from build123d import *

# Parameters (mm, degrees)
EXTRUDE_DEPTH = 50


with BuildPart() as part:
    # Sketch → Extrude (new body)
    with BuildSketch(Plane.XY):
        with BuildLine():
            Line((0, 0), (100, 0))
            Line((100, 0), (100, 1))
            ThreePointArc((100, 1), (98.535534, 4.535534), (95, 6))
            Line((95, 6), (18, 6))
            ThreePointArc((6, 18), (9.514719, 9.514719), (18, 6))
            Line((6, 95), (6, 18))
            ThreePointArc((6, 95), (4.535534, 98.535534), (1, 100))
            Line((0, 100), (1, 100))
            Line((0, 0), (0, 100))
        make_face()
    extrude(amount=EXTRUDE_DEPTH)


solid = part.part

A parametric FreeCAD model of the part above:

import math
import FreeCAD as App
import Part
import Sketcher

doc = App.newDocument("Part")
body = doc.addObject("PartDesign::Body", "Body")

sketch1 = body.newObject("Sketcher::SketchObject", "Sketch")
sketch1.AttachmentSupport = (doc.getObject("XY_Plane"), [""])
sketch1.MapMode = "FlatFace"
sketch1.addGeometry([
    Part.LineSegment(App.Vector(0, 0, 0), App.Vector(100, 0, 0)),
    Part.LineSegment(App.Vector(100, 0, 0), App.Vector(100, 1, 0)),
    Part.ArcOfCircle(Part.Circle(App.Vector(95, 1, 0), App.Vector(0, 0, 1), 5), math.radians(-0.000004), math.radians(90.000004)),
    Part.LineSegment(App.Vector(95, 6, 0), App.Vector(18, 6, 0)),
    Part.ArcOfCircle(Part.Circle(App.Vector(18.000001, 18.000001, 0), App.Vector(0, 0, 1), 12.000001), math.radians(-179.999994), math.radians(-90.000006)),
    Part.LineSegment(App.Vector(6, 18, 0), App.Vector(6, 95, 0)),
    Part.ArcOfCircle(Part.Circle(App.Vector(1, 95, 0), App.Vector(0, 0, 1), 5), math.radians(-0.000004), math.radians(90.000004)),
    Part.LineSegment(App.Vector(1, 100, 0), App.Vector(0, 100, 0)),
    Part.LineSegment(App.Vector(0, 100, 0), App.Vector(0, 0, 0)),
], False)
sketch1.addConstraint([
    Sketcher.Constraint("Coincident", 0, 2, 1, 1),
    Sketcher.Constraint("Tangent", 1, 2, 2, 1),
    Sketcher.Constraint("Tangent", 2, 2, 3, 1),
    Sketcher.Constraint("Tangent", 3, 2, 4, 2),
    Sketcher.Constraint("Tangent", 4, 1, 5, 1),
    Sketcher.Constraint("Tangent", 5, 2, 6, 1),
    Sketcher.Constraint("Tangent", 6, 2, 7, 1),
    Sketcher.Constraint("Coincident", 7, 2, 8, 1),
    Sketcher.Constraint("Coincident", 8, 2, 0, 1),
    Sketcher.Constraint("Horizontal", 0),
    Sketcher.Constraint("Vertical", 1),
    Sketcher.Constraint("Horizontal", 3),
    Sketcher.Constraint("Vertical", 5),
    Sketcher.Constraint("Horizontal", 7),
    Sketcher.Constraint("Vertical", 8),
    Sketcher.Constraint("Coincident", 8, 2, -1, 1),
    Sketcher.Constraint("Equal", 2, 6),
    Sketcher.Constraint("Equal", 7, 1),
    Sketcher.Constraint("Equal", 3, 5),
    Sketcher.Constraint("Radius", 2, 5.0),
    Sketcher.Constraint("Radius", 4, 12.000001),
    Sketcher.Constraint("DistanceX", 0, 1, 0, 2, 100.0),
    Sketcher.Constraint("DistanceX", 3, 2, 3, 1, 77.0),
])
pad1 = body.newObject("PartDesign::Pad", "Pad")
pad1.Profile = sketch1
pad1.Length = 50

doc.recompute()
